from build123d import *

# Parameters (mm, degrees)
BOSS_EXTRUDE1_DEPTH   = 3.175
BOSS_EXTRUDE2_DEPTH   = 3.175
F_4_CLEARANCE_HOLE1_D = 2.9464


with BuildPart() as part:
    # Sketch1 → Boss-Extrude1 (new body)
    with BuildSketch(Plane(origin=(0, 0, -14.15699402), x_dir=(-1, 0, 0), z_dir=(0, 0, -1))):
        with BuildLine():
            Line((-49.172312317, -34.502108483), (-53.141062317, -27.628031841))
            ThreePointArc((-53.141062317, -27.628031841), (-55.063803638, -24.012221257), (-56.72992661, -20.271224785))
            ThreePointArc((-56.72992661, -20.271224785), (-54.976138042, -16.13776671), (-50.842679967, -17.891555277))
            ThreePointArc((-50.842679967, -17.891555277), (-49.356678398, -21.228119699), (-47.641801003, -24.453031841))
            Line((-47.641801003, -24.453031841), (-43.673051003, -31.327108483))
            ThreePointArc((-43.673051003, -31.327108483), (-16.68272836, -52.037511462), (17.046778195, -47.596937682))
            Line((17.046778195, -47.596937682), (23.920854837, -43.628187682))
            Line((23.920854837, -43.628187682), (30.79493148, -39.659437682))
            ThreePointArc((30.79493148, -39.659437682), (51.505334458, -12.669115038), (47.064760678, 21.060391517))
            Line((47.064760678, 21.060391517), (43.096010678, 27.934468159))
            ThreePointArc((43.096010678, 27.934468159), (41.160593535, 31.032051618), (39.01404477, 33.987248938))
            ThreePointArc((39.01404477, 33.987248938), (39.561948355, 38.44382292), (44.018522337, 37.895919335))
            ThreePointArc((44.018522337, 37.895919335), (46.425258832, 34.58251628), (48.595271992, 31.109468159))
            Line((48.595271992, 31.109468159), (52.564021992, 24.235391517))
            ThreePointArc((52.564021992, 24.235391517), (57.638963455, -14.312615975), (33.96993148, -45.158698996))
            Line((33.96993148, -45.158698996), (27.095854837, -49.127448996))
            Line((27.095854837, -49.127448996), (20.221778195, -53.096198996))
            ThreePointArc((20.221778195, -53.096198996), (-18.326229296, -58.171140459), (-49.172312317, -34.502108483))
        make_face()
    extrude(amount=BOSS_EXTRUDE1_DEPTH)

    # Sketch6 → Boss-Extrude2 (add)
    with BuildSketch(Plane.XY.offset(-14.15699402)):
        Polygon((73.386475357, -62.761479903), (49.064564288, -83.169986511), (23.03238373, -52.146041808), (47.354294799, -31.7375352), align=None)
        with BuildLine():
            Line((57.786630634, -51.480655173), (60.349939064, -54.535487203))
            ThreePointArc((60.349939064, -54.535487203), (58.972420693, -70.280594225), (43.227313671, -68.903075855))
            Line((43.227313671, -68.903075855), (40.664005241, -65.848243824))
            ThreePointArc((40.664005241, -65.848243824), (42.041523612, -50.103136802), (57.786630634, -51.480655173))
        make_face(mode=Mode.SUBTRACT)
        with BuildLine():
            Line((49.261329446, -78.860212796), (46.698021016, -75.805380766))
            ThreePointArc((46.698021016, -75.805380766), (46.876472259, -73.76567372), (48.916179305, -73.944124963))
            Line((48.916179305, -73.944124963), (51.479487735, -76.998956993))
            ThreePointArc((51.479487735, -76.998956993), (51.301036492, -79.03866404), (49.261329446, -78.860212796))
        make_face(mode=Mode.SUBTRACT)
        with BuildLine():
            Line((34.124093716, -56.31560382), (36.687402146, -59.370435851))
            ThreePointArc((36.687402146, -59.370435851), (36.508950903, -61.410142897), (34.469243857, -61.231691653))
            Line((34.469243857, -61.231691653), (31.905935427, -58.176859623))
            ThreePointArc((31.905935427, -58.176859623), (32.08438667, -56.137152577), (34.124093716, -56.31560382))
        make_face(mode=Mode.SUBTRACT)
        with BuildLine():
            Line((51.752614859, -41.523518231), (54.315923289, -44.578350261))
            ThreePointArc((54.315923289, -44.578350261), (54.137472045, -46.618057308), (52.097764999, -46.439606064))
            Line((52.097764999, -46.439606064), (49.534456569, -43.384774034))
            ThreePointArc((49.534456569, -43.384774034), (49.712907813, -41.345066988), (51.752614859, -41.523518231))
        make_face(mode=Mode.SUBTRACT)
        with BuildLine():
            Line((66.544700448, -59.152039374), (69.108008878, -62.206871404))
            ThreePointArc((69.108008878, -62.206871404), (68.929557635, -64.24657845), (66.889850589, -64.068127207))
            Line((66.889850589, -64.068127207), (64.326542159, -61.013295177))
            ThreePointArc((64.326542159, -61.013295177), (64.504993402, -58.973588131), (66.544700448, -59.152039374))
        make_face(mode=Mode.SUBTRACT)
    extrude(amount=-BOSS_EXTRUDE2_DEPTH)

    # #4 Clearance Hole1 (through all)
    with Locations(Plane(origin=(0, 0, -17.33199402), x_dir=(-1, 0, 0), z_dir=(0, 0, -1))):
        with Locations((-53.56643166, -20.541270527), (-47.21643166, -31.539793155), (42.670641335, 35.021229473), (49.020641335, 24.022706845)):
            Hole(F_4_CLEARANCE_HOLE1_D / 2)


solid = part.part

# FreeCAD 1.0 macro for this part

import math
import FreeCAD as App
import Part
import Sketcher

V = App.Vector
Q = App.Units.Quantity

doc = App.newDocument("Part")
body = doc.addObject("PartDesign::Body", "Body")

# Sketch on XY plane
sketch1 = doc.addObject("Sketcher::SketchObject", "Sketch")
body.addObject(sketch1)
sketch1.AttachmentSupport = (doc.XY_Plane, [""])
sketch1.MapMode = "FlatFace"
sketch1.AttachmentOffset = App.Placement(V(0, 0, -14.156994), App.Rotation())
sketch1.addGeometry([
    Part.LineSegment(V(53.1, -27.6, 0), V(49.2, -34.5, 0)),  # 0
    Part.ArcOfCircle(Part.Circle(V(5.2, -9.1, 0), V(0, 0, 1), 50.8), math.radians(-120), math.radians(-30)),  # 1
    Part.LineSegment(V(-20.2, -53.1, 0), V(-27.1, -49.1, 0)),  # 2
    Part.LineSegment(V(-27.1, -49.1, 0), V(-34, -45.2, 0)),  # 3
    Part.ArcOfCircle(Part.Circle(V(-8.6, -1.2, 0), V(0, 0, 1), 50.8), math.radians(150), math.radians(240)),  # 4
    Part.LineSegment(V(-52.6, 24.2, 0), V(-48.6, 31.1, 0)),  # 5
    Part.ArcOfCircle(Part.Circle(V(2.3, 1.7, 0), V(0, 0, 1), 58.7), math.radians(142.01), math.radians(150)),  # 6
    Part.ArcOfCircle(Part.Circle(V(-41.5, 35.9, 0), V(0, 0, 1), 3.2), math.radians(-38), math.radians(142)),  # 7
    Part.ArcOfCircle(Part.Circle(V(2.3, 1.7, 0), V(0, 0, 1), 52.4), math.radians(142.01), math.radians(150)),  # 8
    Part.LineSegment(V(-43.1, 27.9, 0), V(-47.1, 21.1, 0)),  # 9
    Part.ArcOfCircle(Part.Circle(V(-8.6, -1.2, 0), V(0, 0, 1), 44.5), math.radians(150), math.radians(240)),  # 10
    Part.LineSegment(V(-30.8, -39.7, 0), V(-23.9, -43.6, 0)),  # 11
    Part.LineSegment(V(-23.9, -43.6, 0), V(-17, -47.6, 0)),  # 12
    Part.ArcOfCircle(Part.Circle(V(5.2, -9.1, 0), V(0, 0, 1), 44.5), math.radians(-120), math.radians(-30)),  # 13
    Part.LineSegment(V(43.7, -31.3, 0), V(47.6, -24.5, 0)),  # 14
    Part.ArcOfCircle(Part.Circle(V(2.3, 1.7, 0), V(0, 0, 1), 52.4), math.radians(-30), math.radians(-22.01)),  # 15
    Part.ArcOfCircle(Part.Circle(V(53.8, -19.1, 0), V(0, 0, 1), 3.2), math.radians(-22), math.radians(158)),  # 16
    Part.ArcOfCircle(Part.Circle(V(2.3, 1.7, 0), V(0, 0, 1), 58.7), math.radians(-30), math.radians(-22.01)),  # 17
], False)
sketch1.addConstraint([
    Sketcher.Constraint("Tangent", 0, 2, 1, 2),
    Sketcher.Constraint("Tangent", 1, 1, 2, 1),
    Sketcher.Constraint("Coincident", 2, 2, 3, 1),
    Sketcher.Constraint("Tangent", 3, 2, 4, 2),
    Sketcher.Constraint("Tangent", 4, 1, 5, 1),
    Sketcher.Constraint("Tangent", 5, 2, 6, 2),
    Sketcher.Constraint("Tangent", 6, 1, 7, 2),
    Sketcher.Constraint("Tangent", 7, 1, 8, 1),
    Sketcher.Constraint("Tangent", 8, 2, 9, 1),
    Sketcher.Constraint("Tangent", 9, 2, 10, 1),
    Sketcher.Constraint("Tangent", 10, 2, 11, 1),
    Sketcher.Constraint("Coincident", 11, 2, 12, 1),
    Sketcher.Constraint("Tangent", 12, 2, 13, 1),
    Sketcher.Constraint("Tangent", 13, 2, 14, 1),
    Sketcher.Constraint("Tangent", 14, 2, 15, 1),
    Sketcher.Constraint("Tangent", 15, 2, 16, 2),
    Sketcher.Constraint("Tangent", 16, 1, 17, 2),
    Sketcher.Constraint("Tangent", 17, 1, 0, 1),
    Sketcher.Constraint("Coincident", 8, 3, 6, 3),
    Sketcher.Constraint("Coincident", 10, 3, 4, 3),
    Sketcher.Constraint("Coincident", 13, 3, 1, 3),
    Sketcher.Constraint("Coincident", 15, 3, 6, 3),
    Sketcher.Constraint("Coincident", 17, 3, 6, 3),
    Sketcher.Constraint("Equal", 1, 4),
    Sketcher.Constraint("Equal", 10, 13),
    Sketcher.Constraint("Equal", 8, 15),
    Sketcher.Constraint("Equal", 7, 16),
    Sketcher.Constraint("Perpendicular", 0, 2),
    Sketcher.Constraint("Parallel", 2, 3),
    Sketcher.Constraint("Perpendicular", 3, 5),
    Sketcher.Constraint("Parallel", 5, 9),
    Sketcher.Constraint("Perpendicular", 9, 11),
    Sketcher.Constraint("Equal", 0, 2),
    Sketcher.Constraint("Equal", 2, 3),
    Sketcher.Constraint("Equal", 9, 11),
    Sketcher.Constraint("Radius", 1, Q("2 in")),
    Sketcher.Constraint("Radius", 10, Q("1.75 in")),
    Sketcher.Constraint("Angle", 0, Q("-120 deg")),
    Sketcher.Constraint("Radius", 6, Q("2.3125 in")),
    Sketcher.Constraint("DistanceY", 1, 1, -1, 1, Q("53.096199 mm")),
    Sketcher.Constraint("DistanceX", -1, 1, 14, 2, Q("47.641801 mm")),
    Sketcher.Constraint("DistanceX", 4, 1, 6, 1, Q("8.5455 mm")),
    Sketcher.Constraint("DistanceY", 16, 3, -1, 1, Q("19.08139 mm")),
])
pad1 = doc.addObject("PartDesign::Pad", "Pad")
body.addObject(pad1)
pad1.Profile = sketch1
pad1.Length = Q("0.125 in")
pad1.Reversed = True

# Sketch on XY plane
sketch2 = doc.addObject("Sketcher::SketchObject", "Sketch001")
body.addObject(sketch2)
sketch2.AttachmentSupport = (doc.XY_Plane, [""])
sketch2.MapMode = "FlatFace"
sketch2.AttachmentOffset = App.Placement(V(0, 0, -14.156994), App.Rotation())
sketch2.addGeometry([
    Part.LineSegment(V(49.1, -83.2, 0), V(73.4, -62.8, 0)),  # 0
    Part.LineSegment(V(73.4, -62.8, 0), V(47.4, -31.7, 0)),  # 1
    Part.LineSegment(V(47.4, -31.7, 0), V(23, -52.1, 0)),  # 2
    Part.LineSegment(V(23, -52.1, 0), V(49.1, -83.2, 0)),  # 3
    Part.LineSegment(V(66.5, -59.2, 0), V(69.1, -62.2, 0)),  # 4
    Part.ArcOfCircle(Part.Circle(V(68, -63.1, 0), V(0, 0, 1), 1.4), math.radians(-140), math.radians(40)),  # 5
    Part.LineSegment(V(66.9, -64.1, 0), V(64.3, -61, 0)),  # 6
    Part.ArcOfCircle(Part.Circle(V(65.4, -60.1, 0), V(0, 0, 1), 1.4), math.radians(40), math.radians(220)),  # 7
    Part.LineSegment(V(49.3, -78.9, 0), V(46.7, -75.8, 0)),  # 8
    Part.ArcOfCircle(Part.Circle(V(47.8, -74.9, 0), V(0, 0, 1), 1.4), math.radians(40), math.radians(220)),  # 9
    Part.LineSegment(V(48.9, -73.9, 0), V(51.5, -77, 0)),  # 10
    Part.ArcOfCircle(Part.Circle(V(50.4, -77.9, 0), V(0, 0, 1), 1.4), math.radians(-140), math.radians(40)),  # 11
    Part.LineSegment(V(51.8, -41.5, 0), V(54.3, -44.6, 0)),  # 12
    Part.ArcOfCircle(Part.Circle(V(53.2, -45.5, 0), V(0, 0, 1), 1.4), math.radians(-140), math.radians(40)),  # 13
    Part.LineSegment(V(52.1, -46.4, 0), V(49.5, -43.4, 0)),  # 14
    Part.ArcOfCircle(Part.Circle(V(50.6, -42.5, 0), V(0, 0, 1), 1.4), math.radians(40), math.radians(220)),  # 15
    Part.LineSegment(V(57.8, -51.5, 0), V(60.3, -54.5, 0)),  # 16
    Part.ArcOfCircle(Part.Circle(V(51.8, -61.7, 0), V(0, 0, 1), 11.2), math.radians(-140), math.radians(40)),  # 17
    Part.LineSegment(V(43.2, -68.9, 0), V(40.7, -65.8, 0)),  # 18
    Part.ArcOfCircle(Part.Circle(V(49.2, -58.7, 0), V(0, 0, 1), 11.2), math.radians(40), math.radians(220)),  # 19
    Part.LineSegment(V(34.1, -56.3, 0), V(36.7, -59.4, 0)),  # 20
    Part.ArcOfCircle(Part.Circle(V(35.6, -60.3, 0), V(0, 0, 1), 1.4), math.radians(-140), math.radians(40)),  # 21
    Part.LineSegment(V(34.5, -61.2, 0), V(31.9, -58.2, 0)),  # 22
    Part.ArcOfCircle(Part.Circle(V(33, -57.2, 0), V(0, 0, 1), 1.4), math.radians(40), math.radians(220)),  # 23
], False)
sketch2.addConstraint([
    Sketcher.Constraint("Coincident", 0, 2, 1, 1),
    Sketcher.Constraint("Coincident", 1, 2, 2, 1),
    Sketcher.Constraint("Coincident", 2, 2, 3, 1),
    Sketcher.Constraint("Coincident", 3, 2, 0, 1),
    Sketcher.Constraint("Tangent", 4, 2, 5, 2),
    Sketcher.Constraint("Tangent", 5, 1, 6, 1),
    Sketcher.Constraint("Tangent", 6, 2, 7, 2),
    Sketcher.Constraint("Tangent", 7, 1, 4, 1),
    Sketcher.Constraint("Tangent", 8, 2, 9, 2),
    Sketcher.Constraint("Tangent", 9, 1, 10, 1),
    Sketcher.Constraint("Tangent", 10, 2, 11, 2),
    Sketcher.Constraint("Tangent", 11, 1, 8, 1),
    Sketcher.Constraint("Tangent", 12, 2, 13, 2),
    Sketcher.Constraint("Tangent", 13, 1, 14, 1),
    Sketcher.Constraint("Tangent", 14, 2, 15, 2),
    Sketcher.Constraint("Tangent", 15, 1, 12, 1),
    Sketcher.Constraint("Tangent", 16, 2, 17, 2),
    Sketcher.Constraint("Tangent", 17, 1, 18, 1),
    Sketcher.Constraint("Tangent", 18, 2, 19, 2),
    Sketcher.Constraint("Tangent", 19, 1, 16, 1),
    Sketcher.Constraint("Tangent", 20, 2, 21, 2),
    Sketcher.Constraint("Tangent", 21, 1, 22, 1),
    Sketcher.Constraint("Tangent", 22, 2, 23, 2),
    Sketcher.Constraint("Tangent", 23, 1, 20, 1),
    Sketcher.Constraint("Equal", 5, 7),
    Sketcher.Constraint("Equal", 7, 9),
    Sketcher.Constraint("Equal", 9, 11),
    Sketcher.Constraint("Equal", 11, 13),
    Sketcher.Constraint("Equal", 13, 15),
    Sketcher.Constraint("Equal", 17, 19),
    Sketcher.Constraint("Equal", 15, 21),
    Sketcher.Constraint("Equal", 21, 23),
    Sketcher.Constraint("Perpendicular", 0, 1),
    Sketcher.Constraint("Perpendicular", 1, 2),
    Sketcher.Constraint("Perpendicular", 2, 3),
    Sketcher.Constraint("Parallel", 3, 4),
    Sketcher.Constraint("Parallel", 6, 8),
    Sketcher.Constraint("Parallel", 10, 12),
    Sketcher.Constraint("Parallel", 14, 16),
    Sketcher.Constraint("Parallel", 18, 20),
    Sketcher.Constraint("Equal", 6, 8),
    Sketcher.Constraint("Equal", 10, 12),
    Sketcher.Constraint("Equal", 14, 16),
    Sketcher.Constraint("Equal", 18, 20),
    Sketcher.Constraint("Radius", 17, Q("0.44 in")),
    Sketcher.Constraint("Angle", 0, Q("40 deg")),
    Sketcher.Constraint("Radius", 5, Q("0.057 in")),
    Sketcher.Constraint("Distance", 0, Q("1.25 in")),
    Sketcher.Constraint("Distance", 4, Q("0.157 in")),
    Sketcher.Constraint("DistanceX", 8, 2, 19, 3, Q("0.0994999 in")),
    Sketcher.Constraint("DistanceX", 17, 3, 12, 2, Q("0.0994999 in")),
    Sketcher.Constraint("DistanceY", 5, 3, -1, 1, Q("63.137499 mm")),
    Sketcher.Constraint("DistanceX", -1, 1, 9, 3, Q("47.8071 mm")),
    Sketcher.Constraint("DistanceX", -1, 1, 7, 1, Q("66.5447 mm")),
    Sketcher.Constraint("DistanceY", 0, 2, 17, 3, Q("1.042198 mm")),
    Sketcher.Constraint("DistanceY", 0, 2, 13, 3, Q("17.252502 mm")),
    Sketcher.Constraint("DistanceY", 3, 2, 11, 3, Q("5.240402 mm")),
    Sketcher.Constraint("DistanceY", 13, 3, -1, 1, Q("45.508978 mm")),
    Sketcher.Constraint("DistanceY", 23, 3, -1, 1, Q("57.246232 mm")),
    Sketcher.Constraint("DistanceY", 2, 2, -1, 1, Q("52.146042 mm")),
    Sketcher.Constraint("DistanceX", 21, 3, 13, 3, Q("17.628521 mm")),
    Sketcher.Constraint("DistanceX", 17, 3, 0, 2, Q("21.597849 mm")),
])
pad2 = doc.addObject("PartDesign::Pad", "Pad001")
body.addObject(pad2)
pad2.Profile = sketch2
pad2.Length = Q("0.125 in")
pad2.Reversed = True

# Sketch on XY plane
sketch3 = doc.addObject("Sketcher::SketchObject", "Sketch002")
body.addObject(sketch3)
sketch3.AttachmentSupport = (doc.XY_Plane, [""])
sketch3.MapMode = "FlatFace"
sketch3.AttachmentOffset = App.Placement(V(0, 0, -17.331994), App.Rotation())
sketch3.addGeometry([
    Part.Circle(V(53.6, -20.5, 0), V(0, 0, 1), 1.5),
    Part.Circle(V(47.2, -31.5, 0), V(0, 0, 1), 1.5),
    Part.Circle(V(-42.7, 35, 0), V(0, 0, 1), 1.5),
    Part.Circle(V(-49, 24, 0), V(0, 0, 1), 1.5),
], False)
sketch3.addConstraint([
    Sketcher.Constraint("Equal", 0, 1),
    Sketcher.Constraint("Equal", 1, 2),
    Sketcher.Constraint("Equal", 2, 3),
    Sketcher.Constraint("Diameter", 0, Q("0.116 in")),
    Sketcher.Constraint("DistanceX", 1, 3, 0, 3, Q("0.25 in")),
    Sketcher.Constraint("DistanceX", 3, 3, 2, 3, Q("0.25 in")),
    Sketcher.Constraint("DistanceY", 0, 3, 2, 3, Q("2.1875 in")),
    Sketcher.Constraint("DistanceY", 1, 3, 3, 3, Q("2.1875 in")),
    Sketcher.Constraint("DistanceX", -1, 1, 0, 3, Q("53.566432 mm")),
    Sketcher.Constraint("DistanceY", 0, 3, -1, 1, Q("20.541271 mm")),
    Sketcher.Constraint("DistanceX", 2, 3, -1, 1, Q("42.670641 mm")),
    Sketcher.Constraint("DistanceY", 1, 3, -1, 1, Q("31.539793 mm")),
])
doc.recompute()
hole = doc.addObject("PartDesign::Hole", "Hole")
body.addObject(hole)
hole.Profile = sketch3
hole.ThreadType = "None"
hole.Diameter = Q("0.116 in")
hole.DepthType = "ThroughAll"
hole.Reversed = True

doc.recompute()
